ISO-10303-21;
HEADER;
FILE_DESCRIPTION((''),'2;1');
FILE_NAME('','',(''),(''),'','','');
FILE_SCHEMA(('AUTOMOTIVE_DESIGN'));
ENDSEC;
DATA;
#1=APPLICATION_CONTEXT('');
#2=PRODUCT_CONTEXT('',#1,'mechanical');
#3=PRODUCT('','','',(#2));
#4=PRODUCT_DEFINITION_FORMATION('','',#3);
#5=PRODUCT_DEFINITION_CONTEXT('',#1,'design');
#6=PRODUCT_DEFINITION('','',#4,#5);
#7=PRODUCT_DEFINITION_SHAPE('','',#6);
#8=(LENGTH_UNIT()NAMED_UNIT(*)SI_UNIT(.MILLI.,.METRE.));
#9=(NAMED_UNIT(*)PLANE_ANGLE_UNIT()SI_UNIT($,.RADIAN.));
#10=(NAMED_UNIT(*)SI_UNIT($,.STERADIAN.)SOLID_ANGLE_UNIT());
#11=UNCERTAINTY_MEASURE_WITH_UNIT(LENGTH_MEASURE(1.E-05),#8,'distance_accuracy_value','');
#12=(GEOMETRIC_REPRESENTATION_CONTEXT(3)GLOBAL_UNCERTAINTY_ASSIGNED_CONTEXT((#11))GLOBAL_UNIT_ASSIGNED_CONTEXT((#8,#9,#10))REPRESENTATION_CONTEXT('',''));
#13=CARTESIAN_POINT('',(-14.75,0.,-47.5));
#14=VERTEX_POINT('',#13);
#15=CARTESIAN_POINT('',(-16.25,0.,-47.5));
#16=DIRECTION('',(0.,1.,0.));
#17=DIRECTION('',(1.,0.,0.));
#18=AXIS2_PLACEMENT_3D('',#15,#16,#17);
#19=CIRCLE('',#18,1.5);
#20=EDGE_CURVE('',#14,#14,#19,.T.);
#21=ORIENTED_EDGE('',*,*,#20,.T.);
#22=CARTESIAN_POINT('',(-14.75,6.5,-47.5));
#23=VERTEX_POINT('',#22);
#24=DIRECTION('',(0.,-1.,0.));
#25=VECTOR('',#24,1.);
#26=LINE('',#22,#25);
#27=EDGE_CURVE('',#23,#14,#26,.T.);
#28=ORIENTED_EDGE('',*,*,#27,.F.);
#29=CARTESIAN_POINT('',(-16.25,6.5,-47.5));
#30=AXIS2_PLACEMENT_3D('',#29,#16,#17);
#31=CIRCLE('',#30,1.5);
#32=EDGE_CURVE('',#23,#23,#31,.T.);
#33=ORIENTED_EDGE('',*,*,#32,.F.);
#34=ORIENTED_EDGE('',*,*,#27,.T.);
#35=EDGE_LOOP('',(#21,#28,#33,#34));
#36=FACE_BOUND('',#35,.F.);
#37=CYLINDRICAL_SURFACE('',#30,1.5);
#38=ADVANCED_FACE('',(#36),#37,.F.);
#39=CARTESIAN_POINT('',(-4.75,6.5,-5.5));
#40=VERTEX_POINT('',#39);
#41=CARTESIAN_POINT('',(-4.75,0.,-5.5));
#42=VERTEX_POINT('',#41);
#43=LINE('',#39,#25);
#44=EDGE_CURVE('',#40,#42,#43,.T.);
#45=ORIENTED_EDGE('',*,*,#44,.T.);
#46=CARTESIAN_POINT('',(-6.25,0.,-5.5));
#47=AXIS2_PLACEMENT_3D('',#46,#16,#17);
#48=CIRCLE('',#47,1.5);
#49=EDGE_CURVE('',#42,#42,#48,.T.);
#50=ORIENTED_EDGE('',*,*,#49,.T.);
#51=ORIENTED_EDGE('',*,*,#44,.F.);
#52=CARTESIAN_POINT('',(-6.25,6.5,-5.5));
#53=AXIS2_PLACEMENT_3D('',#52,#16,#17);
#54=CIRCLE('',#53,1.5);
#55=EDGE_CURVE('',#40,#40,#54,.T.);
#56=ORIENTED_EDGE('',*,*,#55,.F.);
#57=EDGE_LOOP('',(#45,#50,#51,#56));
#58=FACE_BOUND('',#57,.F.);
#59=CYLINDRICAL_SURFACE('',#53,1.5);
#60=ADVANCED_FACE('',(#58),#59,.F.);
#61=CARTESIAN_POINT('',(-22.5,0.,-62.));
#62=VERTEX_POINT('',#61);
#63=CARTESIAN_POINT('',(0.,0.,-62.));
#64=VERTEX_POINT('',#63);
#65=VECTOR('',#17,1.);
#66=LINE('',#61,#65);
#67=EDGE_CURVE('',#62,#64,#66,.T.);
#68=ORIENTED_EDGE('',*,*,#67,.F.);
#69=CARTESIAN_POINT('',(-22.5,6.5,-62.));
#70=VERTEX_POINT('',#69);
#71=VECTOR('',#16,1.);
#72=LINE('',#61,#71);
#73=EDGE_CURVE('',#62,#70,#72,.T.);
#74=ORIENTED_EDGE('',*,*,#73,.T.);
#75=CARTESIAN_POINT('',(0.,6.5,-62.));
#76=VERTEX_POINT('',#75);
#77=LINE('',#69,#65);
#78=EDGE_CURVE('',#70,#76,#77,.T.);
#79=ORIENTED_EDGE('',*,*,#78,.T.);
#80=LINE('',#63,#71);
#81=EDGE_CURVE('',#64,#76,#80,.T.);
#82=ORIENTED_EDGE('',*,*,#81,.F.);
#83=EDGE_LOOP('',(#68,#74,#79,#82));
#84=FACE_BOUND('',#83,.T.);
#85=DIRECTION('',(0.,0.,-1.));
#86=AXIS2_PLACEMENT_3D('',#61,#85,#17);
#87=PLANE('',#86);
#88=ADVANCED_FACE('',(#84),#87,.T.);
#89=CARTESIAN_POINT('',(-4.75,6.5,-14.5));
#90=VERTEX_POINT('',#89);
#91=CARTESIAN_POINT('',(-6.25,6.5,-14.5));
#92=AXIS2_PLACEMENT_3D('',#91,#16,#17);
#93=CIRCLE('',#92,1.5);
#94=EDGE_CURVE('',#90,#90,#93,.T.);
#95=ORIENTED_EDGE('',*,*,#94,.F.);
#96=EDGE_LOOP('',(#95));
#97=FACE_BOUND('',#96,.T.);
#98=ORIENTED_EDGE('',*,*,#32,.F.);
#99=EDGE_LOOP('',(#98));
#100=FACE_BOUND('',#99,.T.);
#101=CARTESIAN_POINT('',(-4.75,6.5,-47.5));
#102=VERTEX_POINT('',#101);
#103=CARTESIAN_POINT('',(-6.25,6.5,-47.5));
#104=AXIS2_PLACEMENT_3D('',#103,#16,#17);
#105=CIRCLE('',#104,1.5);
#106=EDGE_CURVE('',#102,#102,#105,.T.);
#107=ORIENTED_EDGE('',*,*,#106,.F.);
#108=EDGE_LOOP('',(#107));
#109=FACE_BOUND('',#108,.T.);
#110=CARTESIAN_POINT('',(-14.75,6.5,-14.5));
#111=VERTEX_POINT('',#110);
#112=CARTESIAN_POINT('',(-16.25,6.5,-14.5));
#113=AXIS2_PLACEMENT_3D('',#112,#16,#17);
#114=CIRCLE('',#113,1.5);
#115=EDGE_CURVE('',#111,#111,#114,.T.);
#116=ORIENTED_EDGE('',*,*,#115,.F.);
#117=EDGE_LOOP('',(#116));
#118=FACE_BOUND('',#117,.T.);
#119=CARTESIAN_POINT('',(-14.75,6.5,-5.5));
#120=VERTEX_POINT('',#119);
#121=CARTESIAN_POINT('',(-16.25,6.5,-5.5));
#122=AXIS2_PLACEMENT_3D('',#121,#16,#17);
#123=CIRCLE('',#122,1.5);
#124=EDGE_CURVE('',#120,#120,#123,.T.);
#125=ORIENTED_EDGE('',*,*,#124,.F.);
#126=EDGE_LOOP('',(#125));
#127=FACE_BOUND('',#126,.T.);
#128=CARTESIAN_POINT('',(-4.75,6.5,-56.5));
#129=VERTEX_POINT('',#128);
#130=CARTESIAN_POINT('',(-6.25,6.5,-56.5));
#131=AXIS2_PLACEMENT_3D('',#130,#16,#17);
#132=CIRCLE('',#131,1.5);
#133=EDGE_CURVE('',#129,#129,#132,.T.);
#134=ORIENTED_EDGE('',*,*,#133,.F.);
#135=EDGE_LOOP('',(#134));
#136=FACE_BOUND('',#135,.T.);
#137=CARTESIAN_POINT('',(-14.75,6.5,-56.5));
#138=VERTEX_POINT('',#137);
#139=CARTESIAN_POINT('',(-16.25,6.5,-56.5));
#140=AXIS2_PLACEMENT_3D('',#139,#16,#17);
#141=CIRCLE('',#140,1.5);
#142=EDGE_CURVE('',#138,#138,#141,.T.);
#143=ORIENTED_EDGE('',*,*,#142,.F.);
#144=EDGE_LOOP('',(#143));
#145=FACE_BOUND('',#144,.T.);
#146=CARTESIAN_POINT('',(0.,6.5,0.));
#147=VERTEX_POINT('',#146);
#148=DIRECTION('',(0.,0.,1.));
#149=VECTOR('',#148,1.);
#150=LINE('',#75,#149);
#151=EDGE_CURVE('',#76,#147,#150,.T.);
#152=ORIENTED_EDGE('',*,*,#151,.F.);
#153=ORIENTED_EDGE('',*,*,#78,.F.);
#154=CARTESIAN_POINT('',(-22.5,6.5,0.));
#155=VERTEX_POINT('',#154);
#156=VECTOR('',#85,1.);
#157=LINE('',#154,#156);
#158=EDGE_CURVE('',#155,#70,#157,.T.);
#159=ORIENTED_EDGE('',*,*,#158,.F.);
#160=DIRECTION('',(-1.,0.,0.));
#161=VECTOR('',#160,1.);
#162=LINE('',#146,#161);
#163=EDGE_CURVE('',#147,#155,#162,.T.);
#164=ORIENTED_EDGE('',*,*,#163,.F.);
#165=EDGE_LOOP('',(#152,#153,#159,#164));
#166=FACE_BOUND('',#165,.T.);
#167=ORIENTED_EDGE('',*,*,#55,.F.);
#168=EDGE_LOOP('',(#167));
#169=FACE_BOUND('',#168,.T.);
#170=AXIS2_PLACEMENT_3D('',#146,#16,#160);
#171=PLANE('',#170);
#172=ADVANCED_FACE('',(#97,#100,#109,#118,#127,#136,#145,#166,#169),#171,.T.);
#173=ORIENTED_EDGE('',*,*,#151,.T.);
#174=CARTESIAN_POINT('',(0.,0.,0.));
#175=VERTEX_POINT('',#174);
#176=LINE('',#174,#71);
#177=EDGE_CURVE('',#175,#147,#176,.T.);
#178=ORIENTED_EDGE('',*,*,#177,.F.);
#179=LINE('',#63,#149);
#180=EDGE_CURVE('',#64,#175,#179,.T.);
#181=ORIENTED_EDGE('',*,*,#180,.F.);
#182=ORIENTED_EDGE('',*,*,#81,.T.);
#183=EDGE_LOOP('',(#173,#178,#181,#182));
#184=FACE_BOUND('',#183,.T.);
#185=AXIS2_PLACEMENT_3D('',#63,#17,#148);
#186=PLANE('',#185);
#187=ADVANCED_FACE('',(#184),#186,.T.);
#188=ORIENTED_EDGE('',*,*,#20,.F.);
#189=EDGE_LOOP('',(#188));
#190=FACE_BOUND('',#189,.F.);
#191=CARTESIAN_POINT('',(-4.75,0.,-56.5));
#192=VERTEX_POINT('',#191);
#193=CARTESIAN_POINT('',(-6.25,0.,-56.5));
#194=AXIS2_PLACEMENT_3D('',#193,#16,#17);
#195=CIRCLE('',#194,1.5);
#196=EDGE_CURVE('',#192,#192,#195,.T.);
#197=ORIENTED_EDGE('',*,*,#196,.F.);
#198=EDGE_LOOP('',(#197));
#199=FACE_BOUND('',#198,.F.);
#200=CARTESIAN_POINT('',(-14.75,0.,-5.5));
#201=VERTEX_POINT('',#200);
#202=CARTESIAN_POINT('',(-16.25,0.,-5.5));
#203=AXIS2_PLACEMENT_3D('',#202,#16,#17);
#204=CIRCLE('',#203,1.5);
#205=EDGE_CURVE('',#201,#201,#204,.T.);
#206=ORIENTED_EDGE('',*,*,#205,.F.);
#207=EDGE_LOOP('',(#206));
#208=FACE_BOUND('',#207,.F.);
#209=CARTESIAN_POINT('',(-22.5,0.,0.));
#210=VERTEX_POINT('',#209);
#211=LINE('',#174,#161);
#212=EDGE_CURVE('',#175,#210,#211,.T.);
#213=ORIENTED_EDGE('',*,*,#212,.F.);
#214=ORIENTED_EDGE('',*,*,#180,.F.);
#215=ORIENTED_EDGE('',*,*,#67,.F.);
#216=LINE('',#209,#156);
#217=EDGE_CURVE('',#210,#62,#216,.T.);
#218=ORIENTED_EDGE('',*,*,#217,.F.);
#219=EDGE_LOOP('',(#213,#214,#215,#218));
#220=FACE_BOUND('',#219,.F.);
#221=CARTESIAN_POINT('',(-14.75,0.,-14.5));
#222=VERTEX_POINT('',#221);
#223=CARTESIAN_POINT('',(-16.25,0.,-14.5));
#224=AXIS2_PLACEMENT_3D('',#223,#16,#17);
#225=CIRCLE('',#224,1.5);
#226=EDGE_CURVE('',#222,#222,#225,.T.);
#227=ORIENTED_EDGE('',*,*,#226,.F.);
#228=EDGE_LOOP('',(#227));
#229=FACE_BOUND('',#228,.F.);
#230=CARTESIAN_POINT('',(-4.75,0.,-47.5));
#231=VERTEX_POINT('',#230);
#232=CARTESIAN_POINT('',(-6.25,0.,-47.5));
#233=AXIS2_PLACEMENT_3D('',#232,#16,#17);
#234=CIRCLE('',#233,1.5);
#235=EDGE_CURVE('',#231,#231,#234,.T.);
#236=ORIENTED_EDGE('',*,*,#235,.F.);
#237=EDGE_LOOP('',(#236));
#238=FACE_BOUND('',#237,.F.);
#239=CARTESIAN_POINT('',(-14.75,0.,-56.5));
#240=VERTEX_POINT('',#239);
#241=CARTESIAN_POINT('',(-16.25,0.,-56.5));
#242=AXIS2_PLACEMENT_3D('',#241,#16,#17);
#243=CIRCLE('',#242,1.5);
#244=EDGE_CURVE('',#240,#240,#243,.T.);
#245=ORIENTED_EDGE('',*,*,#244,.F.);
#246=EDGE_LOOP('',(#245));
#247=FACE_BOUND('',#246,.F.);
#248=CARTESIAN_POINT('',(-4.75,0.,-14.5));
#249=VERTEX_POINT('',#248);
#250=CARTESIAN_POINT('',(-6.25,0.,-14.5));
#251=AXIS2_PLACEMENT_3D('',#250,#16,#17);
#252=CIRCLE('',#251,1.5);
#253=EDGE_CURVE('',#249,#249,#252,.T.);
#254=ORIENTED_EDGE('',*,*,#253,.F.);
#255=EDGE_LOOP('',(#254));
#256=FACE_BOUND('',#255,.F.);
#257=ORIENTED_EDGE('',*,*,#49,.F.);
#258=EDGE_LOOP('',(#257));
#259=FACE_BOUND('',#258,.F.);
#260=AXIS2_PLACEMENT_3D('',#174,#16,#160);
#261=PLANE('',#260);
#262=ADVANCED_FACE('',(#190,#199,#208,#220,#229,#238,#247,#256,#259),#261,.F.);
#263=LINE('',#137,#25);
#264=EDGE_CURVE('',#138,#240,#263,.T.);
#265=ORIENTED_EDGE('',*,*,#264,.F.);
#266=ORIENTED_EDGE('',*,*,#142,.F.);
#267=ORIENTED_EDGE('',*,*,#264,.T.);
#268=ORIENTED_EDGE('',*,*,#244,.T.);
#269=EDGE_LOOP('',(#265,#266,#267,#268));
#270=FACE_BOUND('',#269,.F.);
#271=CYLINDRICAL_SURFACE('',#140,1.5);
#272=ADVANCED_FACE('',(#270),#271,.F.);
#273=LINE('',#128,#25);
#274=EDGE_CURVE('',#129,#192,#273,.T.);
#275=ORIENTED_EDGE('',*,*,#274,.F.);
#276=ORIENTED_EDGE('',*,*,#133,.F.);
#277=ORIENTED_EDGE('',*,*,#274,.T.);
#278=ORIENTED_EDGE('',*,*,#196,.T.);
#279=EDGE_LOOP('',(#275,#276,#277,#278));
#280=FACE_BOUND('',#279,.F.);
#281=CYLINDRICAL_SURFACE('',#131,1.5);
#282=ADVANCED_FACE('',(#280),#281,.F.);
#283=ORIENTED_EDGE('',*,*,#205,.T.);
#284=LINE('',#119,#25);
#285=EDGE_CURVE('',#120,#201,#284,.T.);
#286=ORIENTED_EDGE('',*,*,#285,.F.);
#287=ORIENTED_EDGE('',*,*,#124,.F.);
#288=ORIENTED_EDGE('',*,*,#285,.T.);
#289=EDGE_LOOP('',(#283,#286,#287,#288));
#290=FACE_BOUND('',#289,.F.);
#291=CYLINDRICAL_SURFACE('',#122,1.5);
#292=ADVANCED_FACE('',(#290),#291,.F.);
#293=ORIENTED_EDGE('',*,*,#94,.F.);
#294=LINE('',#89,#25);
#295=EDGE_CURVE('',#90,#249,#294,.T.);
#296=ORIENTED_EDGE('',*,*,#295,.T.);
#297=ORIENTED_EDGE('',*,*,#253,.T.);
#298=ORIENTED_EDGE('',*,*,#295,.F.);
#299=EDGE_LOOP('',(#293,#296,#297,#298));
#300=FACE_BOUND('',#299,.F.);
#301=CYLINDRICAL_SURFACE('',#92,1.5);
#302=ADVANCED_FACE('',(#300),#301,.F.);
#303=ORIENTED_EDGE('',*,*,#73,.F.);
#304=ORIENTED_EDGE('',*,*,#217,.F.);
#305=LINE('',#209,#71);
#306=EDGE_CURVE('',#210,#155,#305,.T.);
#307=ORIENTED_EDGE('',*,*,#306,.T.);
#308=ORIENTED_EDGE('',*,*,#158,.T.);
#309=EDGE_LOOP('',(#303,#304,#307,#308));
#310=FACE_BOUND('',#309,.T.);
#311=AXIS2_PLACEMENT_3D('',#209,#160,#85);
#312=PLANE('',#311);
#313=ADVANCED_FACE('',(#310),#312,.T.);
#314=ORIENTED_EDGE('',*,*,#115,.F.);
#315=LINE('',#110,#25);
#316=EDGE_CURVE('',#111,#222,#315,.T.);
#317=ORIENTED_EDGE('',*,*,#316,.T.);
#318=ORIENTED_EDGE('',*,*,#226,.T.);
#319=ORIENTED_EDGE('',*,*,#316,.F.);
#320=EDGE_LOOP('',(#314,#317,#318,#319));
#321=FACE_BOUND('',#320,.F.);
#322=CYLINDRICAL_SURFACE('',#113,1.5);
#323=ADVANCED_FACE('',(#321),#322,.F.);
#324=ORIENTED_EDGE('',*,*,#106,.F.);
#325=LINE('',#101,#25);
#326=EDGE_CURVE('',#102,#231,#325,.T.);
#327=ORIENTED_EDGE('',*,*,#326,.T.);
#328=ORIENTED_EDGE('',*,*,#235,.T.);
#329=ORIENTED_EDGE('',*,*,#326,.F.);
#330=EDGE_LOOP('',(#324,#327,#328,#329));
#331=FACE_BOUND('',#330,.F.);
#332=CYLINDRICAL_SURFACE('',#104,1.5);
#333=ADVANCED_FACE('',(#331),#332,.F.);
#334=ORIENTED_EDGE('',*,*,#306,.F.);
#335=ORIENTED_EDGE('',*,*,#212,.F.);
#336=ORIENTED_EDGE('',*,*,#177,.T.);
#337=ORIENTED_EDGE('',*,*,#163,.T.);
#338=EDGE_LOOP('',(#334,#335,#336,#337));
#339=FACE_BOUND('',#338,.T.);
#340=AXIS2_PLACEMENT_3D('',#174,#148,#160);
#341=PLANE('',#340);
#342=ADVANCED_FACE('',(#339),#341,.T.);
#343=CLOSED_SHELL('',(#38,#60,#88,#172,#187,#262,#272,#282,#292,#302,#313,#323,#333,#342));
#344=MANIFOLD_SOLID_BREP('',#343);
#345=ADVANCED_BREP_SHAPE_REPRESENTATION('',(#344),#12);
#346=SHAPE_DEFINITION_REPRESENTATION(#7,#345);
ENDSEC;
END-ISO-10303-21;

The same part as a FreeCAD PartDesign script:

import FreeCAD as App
import Part
import Sketcher

V = App.Vector
Q = App.Units.Quantity

doc = App.newDocument("Part")
body = doc.addObject("PartDesign::Body", "Body")

sketch1 = body.newObject("Sketcher::SketchObject", "Sketch")
sketch1.AttachmentSupport = (doc.getObject("XZ_Plane"), [""])
sketch1.MapMode = "FlatFace"
sketch1.addGeometry([
    Part.LineSegment(V(-22, 0, 0), V(0, 0, 0)),
    Part.LineSegment(V(0, 0, 0), V(0, -62, 0)),
    Part.LineSegment(V(0, -62, 0), V(-22, -62, 0)),
    Part.LineSegment(V(-22, -62, 0), V(-22, 0, 0)),
], False)
sketch1.addConstraint([
    Sketcher.Constraint("Coincident", 0, 2, 1, 1),
    Sketcher.Constraint("Coincident", 1, 2, 2, 1),
    Sketcher.Constraint("Coincident", 2, 2, 3, 1),
    Sketcher.Constraint("Coincident", 3, 2, 0, 1),
    Sketcher.Constraint("Horizontal", 0),
    Sketcher.Constraint("Vertical", 1),
    Sketcher.Constraint("Horizontal", 2),
    Sketcher.Constraint("Vertical", 3),
    Sketcher.Constraint("Coincident", 0, 2, -1, 1),
    Sketcher.Constraint("DistanceY", 1, 2, 1, 1, Q("62 mm")),
    Sketcher.Constraint("DistanceX", 0, 1, 0, 2, Q("22.5 mm")),
])
pad1 = body.newObject("PartDesign::Pad", "Pad")
pad1.Profile = sketch1
pad1.Length = 6.5
pad1.Reversed = True

sketch2 = body.newObject("Sketcher::SketchObject", "Sketch001")
sketch2.AttachmentSupport = (doc.getObject("XZ_Plane"), [""])
sketch2.MapMode = "FlatFace"
sketch2.AttachmentOffset = App.Placement(V(0, 0, -6.5), App.Rotation())
sketch2.addGeometry([
    Part.Circle(V(-16.2, -56.5, 0), V(0, 0, 1), 1.5),
    Part.Circle(V(-16.2, -47.5, 0), V(0, 0, 1), 1.5),
    Part.Circle(V(-6.2, -56.5, 0), V(0, 0, 1), 1.5),
    Part.Circle(V(-6.2, -47.5, 0), V(0, 0, 1), 1.5),
    Part.Circle(V(-16.2, -14.5, 0), V(0, 0, 1), 1.5),
    Part.Circle(V(-16.2, -5.5, 0), V(0, 0, 1), 1.5),
    Part.Circle(V(-6.2, -14.5, 0), V(0, 0, 1), 1.5),
    Part.Circle(V(-6.2, -5.5, 0), V(0, 0, 1), 1.5),
], False)
sketch2.addConstraint([
    Sketcher.Constraint("Equal", 0, 1),
    Sketcher.Constraint("Equal", 1, 2),
    Sketcher.Constraint("Equal", 2, 3),
    Sketcher.Constraint("Equal", 3, 4),
    Sketcher.Constraint("Equal", 4, 5),
    Sketcher.Constraint("Equal", 5, 6),
    Sketcher.Constraint("Equal", 6, 7),
    Sketcher.Constraint("Horizontal", 0, 3, 2, 3),
    Sketcher.Constraint("Horizontal", 1, 3, 3, 3),
    Sketcher.Constraint("Horizontal", 4, 3, 6, 3),
    Sketcher.Constraint("Horizontal", 5, 3, 7, 3),
    Sketcher.Constraint("Vertical", 0, 3, 1, 3),
    Sketcher.Constraint("Vertical", 2, 3, 3, 3),
    Sketcher.Constraint("Vertical", 1, 3, 4, 3),
    Sketcher.Constraint("Vertical", 4, 3, 5, 3),
    Sketcher.Constraint("Vertical", 3, 3, 6, 3),
    Sketcher.Constraint("Vertical", 6, 3, 7, 3),
    Sketcher.Constraint("Diameter", 0, Q("3 mm")),
    Sketcher.Constraint("DistanceY", 0, 3, 1, 3, Q("9 mm")),
    Sketcher.Constraint("DistanceX", 0, 3, 2, 3, Q("10 mm")),
    Sketcher.Constraint("DistanceY", 0, 3, 4, 3, Q("42 mm")),
    Sketcher.Constraint("DistanceY", 4, 3, 5, 3, Q("9 mm")),
    Sketcher.Constraint("DistanceY", 0, 3, -1, 1, Q("56.5 mm")),
    Sketcher.Constraint("DistanceX", 0, 3, -1, 1, Q("16.25 mm")),
])
pocket1 = body.newObject("PartDesign::Pocket", "Pocket")
pocket1.Profile = sketch2
pocket1.Type = "ThroughAll"
pocket1.Reversed = True

doc.recompute()
